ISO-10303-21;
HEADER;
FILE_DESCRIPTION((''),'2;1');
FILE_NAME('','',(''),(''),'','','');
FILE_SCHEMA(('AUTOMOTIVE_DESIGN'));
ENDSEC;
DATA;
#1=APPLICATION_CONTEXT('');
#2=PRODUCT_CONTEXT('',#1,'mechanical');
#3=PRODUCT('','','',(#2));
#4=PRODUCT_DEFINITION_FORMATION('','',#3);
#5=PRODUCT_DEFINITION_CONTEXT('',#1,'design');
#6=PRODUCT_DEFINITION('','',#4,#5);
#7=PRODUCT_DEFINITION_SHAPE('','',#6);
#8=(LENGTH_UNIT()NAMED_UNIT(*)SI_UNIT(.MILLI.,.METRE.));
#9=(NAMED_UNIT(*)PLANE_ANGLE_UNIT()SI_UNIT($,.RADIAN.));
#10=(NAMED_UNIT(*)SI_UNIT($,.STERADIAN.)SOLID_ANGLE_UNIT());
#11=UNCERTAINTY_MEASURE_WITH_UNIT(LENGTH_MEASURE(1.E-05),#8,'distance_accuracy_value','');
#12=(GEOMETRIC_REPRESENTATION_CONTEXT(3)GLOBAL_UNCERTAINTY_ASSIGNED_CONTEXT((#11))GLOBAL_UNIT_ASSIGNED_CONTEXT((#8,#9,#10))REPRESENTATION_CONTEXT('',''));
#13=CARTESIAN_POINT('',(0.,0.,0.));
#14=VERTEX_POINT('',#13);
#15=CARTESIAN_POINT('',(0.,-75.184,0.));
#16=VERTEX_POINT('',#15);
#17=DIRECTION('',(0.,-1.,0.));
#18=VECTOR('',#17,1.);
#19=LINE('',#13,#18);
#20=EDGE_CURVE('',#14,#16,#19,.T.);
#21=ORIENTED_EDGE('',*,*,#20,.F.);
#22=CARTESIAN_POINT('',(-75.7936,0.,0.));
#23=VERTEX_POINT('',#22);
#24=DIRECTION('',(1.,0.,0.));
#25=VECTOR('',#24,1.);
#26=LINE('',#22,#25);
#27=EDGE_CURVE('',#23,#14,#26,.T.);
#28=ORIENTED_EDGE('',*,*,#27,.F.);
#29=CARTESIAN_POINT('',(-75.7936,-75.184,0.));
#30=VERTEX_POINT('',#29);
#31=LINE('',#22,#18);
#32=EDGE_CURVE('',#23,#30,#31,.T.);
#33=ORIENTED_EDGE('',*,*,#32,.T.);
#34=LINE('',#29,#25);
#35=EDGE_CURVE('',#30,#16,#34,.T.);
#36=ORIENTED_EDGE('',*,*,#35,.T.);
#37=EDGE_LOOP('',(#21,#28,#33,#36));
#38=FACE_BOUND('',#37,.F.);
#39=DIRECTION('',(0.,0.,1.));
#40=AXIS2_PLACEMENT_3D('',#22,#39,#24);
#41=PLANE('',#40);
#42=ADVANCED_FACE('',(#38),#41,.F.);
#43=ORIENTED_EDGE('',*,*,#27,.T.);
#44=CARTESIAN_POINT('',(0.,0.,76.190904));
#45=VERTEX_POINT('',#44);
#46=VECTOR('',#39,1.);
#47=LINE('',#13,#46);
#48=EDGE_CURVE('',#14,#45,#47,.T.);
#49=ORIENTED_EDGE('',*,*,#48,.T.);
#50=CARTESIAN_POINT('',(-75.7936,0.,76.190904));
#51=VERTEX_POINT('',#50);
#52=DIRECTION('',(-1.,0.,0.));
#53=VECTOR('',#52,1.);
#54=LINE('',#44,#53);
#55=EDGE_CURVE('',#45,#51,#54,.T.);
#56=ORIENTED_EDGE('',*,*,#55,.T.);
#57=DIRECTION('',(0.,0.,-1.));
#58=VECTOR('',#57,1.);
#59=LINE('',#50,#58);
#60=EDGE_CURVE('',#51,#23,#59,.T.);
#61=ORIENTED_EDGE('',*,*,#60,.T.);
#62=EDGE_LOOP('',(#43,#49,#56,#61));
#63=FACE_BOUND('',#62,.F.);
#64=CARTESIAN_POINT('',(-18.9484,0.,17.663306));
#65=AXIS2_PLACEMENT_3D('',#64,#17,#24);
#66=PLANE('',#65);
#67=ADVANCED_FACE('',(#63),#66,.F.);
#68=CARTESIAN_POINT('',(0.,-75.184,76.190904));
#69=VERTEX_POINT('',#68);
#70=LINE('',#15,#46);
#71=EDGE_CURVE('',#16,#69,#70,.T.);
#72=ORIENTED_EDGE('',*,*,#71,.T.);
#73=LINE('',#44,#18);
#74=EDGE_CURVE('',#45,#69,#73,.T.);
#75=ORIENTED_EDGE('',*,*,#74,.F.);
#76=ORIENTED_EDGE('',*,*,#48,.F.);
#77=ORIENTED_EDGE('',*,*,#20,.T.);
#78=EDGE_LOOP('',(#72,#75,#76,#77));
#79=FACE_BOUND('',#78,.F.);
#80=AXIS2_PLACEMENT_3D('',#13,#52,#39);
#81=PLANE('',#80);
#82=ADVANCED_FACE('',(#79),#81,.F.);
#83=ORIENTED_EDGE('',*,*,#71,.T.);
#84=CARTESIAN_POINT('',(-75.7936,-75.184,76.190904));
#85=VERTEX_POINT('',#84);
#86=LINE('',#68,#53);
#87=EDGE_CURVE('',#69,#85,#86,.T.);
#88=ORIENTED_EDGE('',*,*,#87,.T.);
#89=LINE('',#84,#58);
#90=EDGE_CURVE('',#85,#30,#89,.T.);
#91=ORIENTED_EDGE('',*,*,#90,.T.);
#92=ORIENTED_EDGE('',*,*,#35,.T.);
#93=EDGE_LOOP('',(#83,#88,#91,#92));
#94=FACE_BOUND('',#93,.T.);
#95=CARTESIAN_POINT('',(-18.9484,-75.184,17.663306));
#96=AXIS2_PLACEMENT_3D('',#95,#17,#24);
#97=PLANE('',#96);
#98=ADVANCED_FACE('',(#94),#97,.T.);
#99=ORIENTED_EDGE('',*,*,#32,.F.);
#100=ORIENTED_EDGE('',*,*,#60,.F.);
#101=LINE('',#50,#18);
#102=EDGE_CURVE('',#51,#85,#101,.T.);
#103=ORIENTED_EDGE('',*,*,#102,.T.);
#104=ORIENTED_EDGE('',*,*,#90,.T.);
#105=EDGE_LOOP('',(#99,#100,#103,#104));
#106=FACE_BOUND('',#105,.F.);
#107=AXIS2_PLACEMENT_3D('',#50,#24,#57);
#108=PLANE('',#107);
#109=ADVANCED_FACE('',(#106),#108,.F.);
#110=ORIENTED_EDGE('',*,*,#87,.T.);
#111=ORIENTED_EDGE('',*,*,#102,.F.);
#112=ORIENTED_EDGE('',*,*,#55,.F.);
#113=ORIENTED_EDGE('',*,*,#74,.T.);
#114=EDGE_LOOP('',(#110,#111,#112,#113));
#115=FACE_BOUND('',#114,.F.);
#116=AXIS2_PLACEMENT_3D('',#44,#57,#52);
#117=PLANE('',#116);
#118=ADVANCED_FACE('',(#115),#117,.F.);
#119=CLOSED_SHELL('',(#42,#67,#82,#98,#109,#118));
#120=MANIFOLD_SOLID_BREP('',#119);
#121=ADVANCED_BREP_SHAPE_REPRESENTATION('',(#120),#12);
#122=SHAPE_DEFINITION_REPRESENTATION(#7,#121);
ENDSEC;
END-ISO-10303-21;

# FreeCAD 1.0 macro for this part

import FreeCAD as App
import Part
import Sketcher
Q = App.Units.Quantity

doc = App.newDocument("Part")
body = doc.addObject("PartDesign::Body", "Body")

# Sketch on XZ plane
sketch1 = body.newObject("Sketcher::SketchObject", "Sketch")
sketch1.AttachmentSupport = (doc.getObject("XZ_Plane"), [""])
sketch1.MapMode = "FlatFace"
sketch1.addGeometry([
    Part.LineSegment(App.Vector(0, 0, 0), App.Vector(0, 76, 0)),
    Part.LineSegment(App.Vector(0, 76, 0), App.Vector(-76, 76, 0)),
    Part.LineSegment(App.Vector(-76, 76, 0), App.Vector(-76, 0, 0)),
    Part.LineSegment(App.Vector(-76, 0, 0), App.Vector(0, 0, 0)),
], False)
sketch1.addConstraint([
    Sketcher.Constraint("Coincident", 0, 2, 1, 1),
    Sketcher.Constraint("Coincident", 1, 2, 2, 1),
    Sketcher.Constraint("Coincident", 2, 2, 3, 1),
    Sketcher.Constraint("Coincident", 3, 2, 0, 1),
    Sketcher.Constraint("Vertical", 0),
    Sketcher.Constraint("Horizontal", 1),
    Sketcher.Constraint("Vertical", 2),
    Sketcher.Constraint("Horizontal", 3),
    Sketcher.Constraint("Coincident", 3, 2, -1, 1),
    Sketcher.Constraint("DistanceX", 1, 2, 1, 1, Q("2.984 in")),
    Sketcher.Constraint("DistanceY", 0, 1, 0, 2, 76.190904),
])
pad1 = body.newObject("PartDesign::Pad", "Pad")
pad1.Profile = sketch1
pad1.Length = Q("2.96 in")

doc.recompute()
